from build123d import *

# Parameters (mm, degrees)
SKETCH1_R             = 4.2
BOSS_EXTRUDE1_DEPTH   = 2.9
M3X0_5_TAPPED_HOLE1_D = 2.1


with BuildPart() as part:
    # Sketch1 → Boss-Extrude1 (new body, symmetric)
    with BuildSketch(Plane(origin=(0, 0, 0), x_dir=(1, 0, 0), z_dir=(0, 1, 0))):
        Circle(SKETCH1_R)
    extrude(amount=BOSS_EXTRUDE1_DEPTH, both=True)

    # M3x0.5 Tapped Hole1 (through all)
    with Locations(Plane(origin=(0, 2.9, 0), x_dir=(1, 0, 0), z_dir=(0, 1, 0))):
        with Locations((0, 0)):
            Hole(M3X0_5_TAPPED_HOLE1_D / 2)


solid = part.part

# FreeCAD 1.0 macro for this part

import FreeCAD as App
import Part
import Sketcher
from FreeCAD import Vector

doc = App.newDocument("Part")
body = doc.addObject("PartDesign::Body", "Body")

# Sketch on XZ plane
sketch1 = body.newObject("Sketcher::SketchObject", "Sketch")
sketch1.AttachmentSupport = (doc.getObject("XZ_Plane"), [""])
sketch1.MapMode = "FlatFace"
sketch1.addGeometry(Part.Circle(Vector(0, 0, 0), Vector(0, 0, 1), 4.2), False)
sketch1.addConstraint([
    Sketcher.Constraint("Coincident", 0, 3, -1, 1),
    Sketcher.Constraint("Diameter", 0, 8.4),
])
pad1 = body.newObject("PartDesign::Pad", "Pad")
pad1.Profile = sketch1
pad1.Length = 5.8
pad1.Midplane = True

# Sketch on XZ plane
sketch2 = body.newObject("Sketcher::SketchObject", "Sketch001")
sketch2.AttachmentSupport = (doc.getObject("XZ_Plane"), [""])
sketch2.MapMode = "FlatFace"
sketch2.AttachmentOffset = App.Placement(Vector(0, 0, -2.9), App.Rotation())
sketch2.addGeometry(Part.Circle(Vector(0, 0, 0), Vector(0, 0, 1), 1.1), False)
sketch2.addConstraint([
    Sketcher.Constraint("Coincident", 0, 3, -1, 1),
    Sketcher.Constraint("Diameter", 0, 2.1),
])
doc.recompute()
hole = body.newObject("PartDesign::Hole", "Hole")
hole.Profile = sketch2
hole.ThreadType = "None"
hole.Diameter = 2.1
hole.DepthType = "ThroughAll"
hole.Reversed = True

doc.recompute()
